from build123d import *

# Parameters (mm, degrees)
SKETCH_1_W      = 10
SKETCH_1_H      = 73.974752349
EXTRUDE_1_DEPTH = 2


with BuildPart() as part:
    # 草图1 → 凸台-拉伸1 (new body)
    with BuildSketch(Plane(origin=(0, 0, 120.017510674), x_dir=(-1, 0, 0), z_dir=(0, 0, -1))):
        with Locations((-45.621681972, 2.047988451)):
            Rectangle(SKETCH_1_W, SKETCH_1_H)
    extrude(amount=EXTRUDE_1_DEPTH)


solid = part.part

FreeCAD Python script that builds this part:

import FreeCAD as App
import Part
import Sketcher

V = App.Vector


def add_polygon(sketch, points):
    """Adds a closed chain of lines whose ends are joined by coincident constraints."""
    first, n = sketch.GeometryCount, len(points)
    for a, b in zip(points, points[1:] + points[:1]):
        sketch.addGeometry(Part.LineSegment(App.Vector(*a, 0), App.Vector(*b, 0)), False)
    for i in range(n):
        sketch.addConstraint(Sketcher.Constraint("Coincident", first + i, 2, first + (i + 1) % n, 1))

doc = App.newDocument("Part")
body = doc.addObject("PartDesign::Body", "Body")

sketch1 = body.newObject("Sketcher::SketchObject", "Sketch")
sketch1.AttachmentSupport = (doc.getObject("XY_Plane"), [""])
sketch1.MapMode = "FlatFace"
sketch1.AttachmentOffset = App.Placement(V(0, 0, 120.017511), App.Rotation())
add_polygon(sketch1, [(50.621682, 39.035365), (50.621682, -34.939388), (40.621682, -34.939388), (40.621682, 39.035365)])
sketch1.addConstraint(Sketcher.Constraint("Vertical", 0))
sketch1.addConstraint(Sketcher.Constraint("Horizontal", 1))
sketch1.addConstraint(Sketcher.Constraint("Vertical", 2))
sketch1.addConstraint(Sketcher.Constraint("Horizontal", 3))
sketch1.addConstraint(Sketcher.Constraint("DistanceX", 1, 2, 1, 1, 10.0))
sketch1.addConstraint(Sketcher.Constraint("DistanceY", 0, 2, 0, 1, 73.974752))
sketch1.addConstraint(Sketcher.Constraint("DistanceX", -1, 1, 0, 2, 50.621682))
sketch1.addConstraint(Sketcher.Constraint("DistanceY", 0, 2, -1, 1, 34.939388))
pad1 = body.newObject("PartDesign::Pad", "Pad")
pad1.Profile = sketch1
pad1.Length = 2
pad1.Reversed = True

doc.recompute()
